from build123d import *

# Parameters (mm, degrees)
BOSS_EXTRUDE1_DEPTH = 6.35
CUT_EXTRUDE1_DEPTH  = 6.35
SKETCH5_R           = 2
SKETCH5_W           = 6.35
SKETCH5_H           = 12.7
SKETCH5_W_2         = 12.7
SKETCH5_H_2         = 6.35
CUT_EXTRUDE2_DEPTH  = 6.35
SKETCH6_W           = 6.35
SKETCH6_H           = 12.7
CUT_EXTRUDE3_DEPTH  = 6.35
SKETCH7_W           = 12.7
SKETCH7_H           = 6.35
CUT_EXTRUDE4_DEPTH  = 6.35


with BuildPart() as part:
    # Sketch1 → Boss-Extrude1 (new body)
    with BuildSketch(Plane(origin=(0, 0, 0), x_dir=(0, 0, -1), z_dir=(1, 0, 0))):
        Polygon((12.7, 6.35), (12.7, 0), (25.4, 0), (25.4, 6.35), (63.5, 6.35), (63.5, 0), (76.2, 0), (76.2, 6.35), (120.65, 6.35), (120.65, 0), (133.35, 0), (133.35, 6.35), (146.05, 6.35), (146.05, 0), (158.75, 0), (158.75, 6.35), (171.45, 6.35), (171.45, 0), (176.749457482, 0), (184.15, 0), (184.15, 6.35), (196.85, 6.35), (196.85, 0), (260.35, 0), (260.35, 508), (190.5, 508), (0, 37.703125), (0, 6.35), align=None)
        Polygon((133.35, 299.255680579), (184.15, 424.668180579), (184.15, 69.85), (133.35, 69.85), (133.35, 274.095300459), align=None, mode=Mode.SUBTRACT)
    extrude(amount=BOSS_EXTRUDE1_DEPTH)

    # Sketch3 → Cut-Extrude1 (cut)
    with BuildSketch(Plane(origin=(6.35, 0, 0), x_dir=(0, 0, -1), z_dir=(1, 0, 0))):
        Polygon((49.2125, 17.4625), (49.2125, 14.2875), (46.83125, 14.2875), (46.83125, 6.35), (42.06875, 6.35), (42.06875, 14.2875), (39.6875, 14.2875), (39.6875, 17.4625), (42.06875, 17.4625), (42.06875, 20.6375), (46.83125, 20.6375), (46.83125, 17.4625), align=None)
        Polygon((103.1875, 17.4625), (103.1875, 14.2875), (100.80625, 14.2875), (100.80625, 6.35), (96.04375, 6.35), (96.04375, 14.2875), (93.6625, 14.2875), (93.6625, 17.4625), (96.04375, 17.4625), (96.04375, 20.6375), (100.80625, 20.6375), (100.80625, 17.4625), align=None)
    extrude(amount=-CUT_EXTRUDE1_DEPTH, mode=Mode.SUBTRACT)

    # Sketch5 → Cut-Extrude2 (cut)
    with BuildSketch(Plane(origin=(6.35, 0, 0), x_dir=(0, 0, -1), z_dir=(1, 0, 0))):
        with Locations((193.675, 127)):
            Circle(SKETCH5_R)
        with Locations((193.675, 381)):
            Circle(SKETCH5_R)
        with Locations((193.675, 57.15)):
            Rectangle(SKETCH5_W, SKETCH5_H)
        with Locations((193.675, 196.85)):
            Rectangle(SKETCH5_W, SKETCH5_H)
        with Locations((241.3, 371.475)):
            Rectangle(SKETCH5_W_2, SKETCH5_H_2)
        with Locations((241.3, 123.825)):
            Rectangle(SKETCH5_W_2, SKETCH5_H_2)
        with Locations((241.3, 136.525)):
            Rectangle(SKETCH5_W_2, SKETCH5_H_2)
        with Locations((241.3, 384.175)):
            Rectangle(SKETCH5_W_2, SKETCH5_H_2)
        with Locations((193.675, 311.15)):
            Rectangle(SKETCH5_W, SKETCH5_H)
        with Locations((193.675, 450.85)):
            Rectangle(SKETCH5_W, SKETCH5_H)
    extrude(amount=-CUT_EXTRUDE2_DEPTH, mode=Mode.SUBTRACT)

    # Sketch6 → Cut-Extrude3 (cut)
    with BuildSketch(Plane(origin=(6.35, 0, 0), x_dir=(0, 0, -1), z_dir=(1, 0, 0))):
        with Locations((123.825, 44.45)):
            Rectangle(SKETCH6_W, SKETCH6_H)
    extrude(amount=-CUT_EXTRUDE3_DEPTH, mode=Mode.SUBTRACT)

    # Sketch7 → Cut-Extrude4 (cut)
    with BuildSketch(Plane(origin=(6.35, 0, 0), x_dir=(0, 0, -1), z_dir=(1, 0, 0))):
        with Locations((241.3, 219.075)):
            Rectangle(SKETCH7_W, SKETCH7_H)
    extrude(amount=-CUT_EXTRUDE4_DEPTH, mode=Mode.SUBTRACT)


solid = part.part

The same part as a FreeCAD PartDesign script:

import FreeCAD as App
import Part
import Sketcher
from FreeCAD import Vector
Q = App.Units.Quantity

doc = App.newDocument("Part")
params = doc.addObject("Spreadsheet::Sheet", "Params")
for row, (alias, value) in enumerate([
    ("sketch1_width", "20 in"),
    ("sketch1_height", "2 in"),
    ("sketch1_height2", "1.5 in"),
    ("sketch1_height3", "2.5 in"),
    ("sketch1_width2", "0.25 in"),
    ("pad1_length", "0.25 in"),
    ("sketch2_width", "0.125 in"),
    ("sketch2_width2", "0.3125 in"),
    ("sketch2_height", "0.09375 in"),
    ("sketch2_height2", "0.1875 in"),
    ("pocket1_length", "0.25 in"),
    ("sketch3_width", "0.5 in"),
    ("sketch3_width2", "0.25 in"),
    ("pocket2_length", "0.25 in"),
    ("sketch4_width", "0.5 in"),
    ("sketch4_height", "0.25 in"),
    ("pocket3_length", "0.25 in"),
    ("sketch5_height", "0.5 in"),
    ("sketch5_width", "0.25 in"),
    ("pocket4_length", "0.25 in"),
], start=1):
    params.set(f"A{row}", alias)
    params.set(f"B{row}", "=" + value)
    params.setAlias(f"B{row}", alias)

body = doc.addObject("PartDesign::Body", "Body")

# Sketch on YZ plane
sketch1 = doc.addObject("Sketcher::SketchObject", "Sketch")
body.addObject(sketch1)
sketch1.AttachmentSupport = (doc.YZ_Plane, [""])
sketch1.MapMode = "FlatFace"
sketch1.addGeometry(Part.LineSegment(Vector(6.35, -12.7, 0), Vector(0, -12.7, 0)), False)
sketch1.addGeometry(Part.LineSegment(Vector(0, -12.7, 0), Vector(0, -25.4, 0)), False)
sketch1.addGeometry(Part.LineSegment(Vector(0, -25.4, 0), Vector(6.35, -25.4, 0)), False)
sketch1.addGeometry(Part.LineSegment(Vector(6.35, -25.4, 0), Vector(6.35, -63.5, 0)), False)
sketch1.addGeometry(Part.LineSegment(Vector(6.35, -63.5, 0), Vector(0, -63.5, 0)), False)
sketch1.addGeometry(Part.LineSegment(Vector(0, -63.5, 0), Vector(0, -76.2, 0)), False)
sketch1.addGeometry(Part.LineSegment(Vector(0, -76.2, 0), Vector(6.35, -76.2, 0)), False)
sketch1.addGeometry(Part.LineSegment(Vector(6.35, -76.2, 0), Vector(6.35, -120.65, 0)), False)
sketch1.addGeometry(Part.LineSegment(Vector(6.35, -120.65, 0), Vector(0, -120.65, 0)), False)
sketch1.addGeometry(Part.LineSegment(Vector(0, -120.65, 0), Vector(0, -133.35, 0)), False)
sketch1.addGeometry(Part.LineSegment(Vector(0, -133.35, 0), Vector(6.35, -133.35, 0)), False)
sketch1.addGeometry(Part.LineSegment(Vector(6.35, -133.35, 0), Vector(6.35, -146.05, 0)), False)
sketch1.addGeometry(Part.LineSegment(Vector(6.35, -146.05, 0), Vector(0, -146.05, 0)), False)
sketch1.addGeometry(Part.LineSegment(Vector(0, -146.05, 0), Vector(0, -158.75, 0)), False)
sketch1.addGeometry(Part.LineSegment(Vector(0, -158.75, 0), Vector(6.35, -158.75, 0)), False)
sketch1.addGeometry(Part.LineSegment(Vector(6.35, -158.75, 0), Vector(6.35, -171.45, 0)), False)
sketch1.addGeometry(Part.LineSegment(Vector(6.35, -171.45, 0), Vector(0, -171.45, 0)), False)
sketch1.addGeometry(Part.LineSegment(Vector(0, -171.45, 0), Vector(0, -184.15, 0)), False)
sketch1.addGeometry(Part.LineSegment(Vector(0, -184.15, 0), Vector(6.35, -184.15, 0)), False)
sketch1.addGeometry(Part.LineSegment(Vector(6.35, -184.15, 0), Vector(6.35, -196.85, 0)), False)
sketch1.addGeometry(Part.LineSegment(Vector(6.35, -196.85, 0), Vector(0, -196.85, 0)), False)
sketch1.addGeometry(Part.LineSegment(Vector(0, -196.85, 0), Vector(0, -260.35, 0)), False)
sketch1.addGeometry(Part.LineSegment(Vector(0, -260.35, 0), Vector(508, -260.35, 0)), False)
sketch1.addGeometry(Part.LineSegment(Vector(508, -260.35, 0), Vector(508, -190.5, 0)), False)
sketch1.addGeometry(Part.LineSegment(Vector(508, -190.5, 0), Vector(37.703125, 0, 0)), False)
sketch1.addGeometry(Part.LineSegment(Vector(37.703125, 0, 0), Vector(6.35, 0, 0)), False)
sketch1.addGeometry(Part.LineSegment(Vector(6.35, 0, 0), Vector(6.35, -12.7, 0)), False)
sketch1.addGeometry(Part.LineSegment(Vector(69.85, -133.35, 0), Vector(299.255681, -133.35, 0)), False)
sketch1.addGeometry(Part.LineSegment(Vector(299.255681, -133.35, 0), Vector(424.668181, -184.15, 0)), False)
sketch1.addGeometry(Part.LineSegment(Vector(424.668181, -184.15, 0), Vector(69.85, -184.15, 0)), False)
sketch1.addGeometry(Part.LineSegment(Vector(69.85, -184.15, 0), Vector(69.85, -133.35, 0)), False)
sketch1.addConstraint(Sketcher.Constraint("Coincident", 0, 2, 1, 1))
sketch1.addConstraint(Sketcher.Constraint("Coincident", 1, 2, 2, 1))
sketch1.addConstraint(Sketcher.Constraint("Coincident", 2, 2, 3, 1))
sketch1.addConstraint(Sketcher.Constraint("Coincident", 3, 2, 4, 1))
sketch1.addConstraint(Sketcher.Constraint("Coincident", 4, 2, 5, 1))
sketch1.addConstraint(Sketcher.Constraint("Coincident", 5, 2, 6, 1))
sketch1.addConstraint(Sketcher.Constraint("Coincident", 6, 2, 7, 1))
sketch1.addConstraint(Sketcher.Constraint("Coincident", 7, 2, 8, 1))
sketch1.addConstraint(Sketcher.Constraint("Coincident", 8, 2, 9, 1))
sketch1.addConstraint(Sketcher.Constraint("Coincident", 9, 2, 10, 1))
sketch1.addConstraint(Sketcher.Constraint("Coincident", 10, 2, 11, 1))
sketch1.addConstraint(Sketcher.Constraint("Coincident", 11, 2, 12, 1))
sketch1.addConstraint(Sketcher.Constraint("Coincident", 12, 2, 13, 1))
sketch1.addConstraint(Sketcher.Constraint("Coincident", 13, 2, 14, 1))
sketch1.addConstraint(Sketcher.Constraint("Coincident", 14, 2, 15, 1))
sketch1.addConstraint(Sketcher.Constraint("Coincident", 15, 2, 16, 1))
sketch1.addConstraint(Sketcher.Constraint("Coincident", 16, 2, 17, 1))
sketch1.addConstraint(Sketcher.Constraint("Coincident", 17, 2, 18, 1))
sketch1.addConstraint(Sketcher.Constraint("Coincident", 18, 2, 19, 1))
sketch1.addConstraint(Sketcher.Constraint("Coincident", 19, 2, 20, 1))
sketch1.addConstraint(Sketcher.Constraint("Coincident", 20, 2, 21, 1))
sketch1.addConstraint(Sketcher.Constraint("Coincident", 21, 2, 22, 1))
sketch1.addConstraint(Sketcher.Constraint("Coincident", 22, 2, 23, 1))
sketch1.addConstraint(Sketcher.Constraint("Coincident", 23, 2, 24, 1))
sketch1.addConstraint(Sketcher.Constraint("Coincident", 24, 2, 25, 1))
sketch1.addConstraint(Sketcher.Constraint("Coincident", 25, 2, 26, 1))
sketch1.addConstraint(Sketcher.Constraint("Coincident", 26, 2, 0, 1))
sketch1.addConstraint(Sketcher.Constraint("Coincident", 27, 2, 28, 1))
sketch1.addConstraint(Sketcher.Constraint("Coincident", 28, 2, 29, 1))
sketch1.addConstraint(Sketcher.Constraint("Coincident", 29, 2, 30, 1))
sketch1.addConstraint(Sketcher.Constraint("Coincident", 30, 2, 27, 1))
sketch1.addConstraint(Sketcher.Constraint("Horizontal", 0))
sketch1.addConstraint(Sketcher.Constraint("Vertical", 1))
sketch1.addConstraint(Sketcher.Constraint("Horizontal", 2))
sketch1.addConstraint(Sketcher.Constraint("Vertical", 3))
sketch1.addConstraint(Sketcher.Constraint("Horizontal", 4))
sketch1.addConstraint(Sketcher.Constraint("Vertical", 5))
sketch1.addConstraint(Sketcher.Constraint("Horizontal", 6))
sketch1.addConstraint(Sketcher.Constraint("Vertical", 7))
sketch1.addConstraint(Sketcher.Constraint("Horizontal", 8))
sketch1.addConstraint(Sketcher.Constraint("Vertical", 9))
sketch1.addConstraint(Sketcher.Constraint("Horizontal", 10))
sketch1.addConstraint(Sketcher.Constraint("Vertical", 11))
sketch1.addConstraint(Sketcher.Constraint("Horizontal", 12))
sketch1.addConstraint(Sketcher.Constraint("Vertical", 13))
sketch1.addConstraint(Sketcher.Constraint("Horizontal", 14))
sketch1.addConstraint(Sketcher.Constraint("Vertical", 15))
sketch1.addConstraint(Sketcher.Constraint("Horizontal", 16))
sketch1.addConstraint(Sketcher.Constraint("Vertical", 17))
sketch1.addConstraint(Sketcher.Constraint("Horizontal", 18))
sketch1.addConstraint(Sketcher.Constraint("Vertical", 19))
sketch1.addConstraint(Sketcher.Constraint("Horizontal", 20))
sketch1.addConstraint(Sketcher.Constraint("Vertical", 21))
sketch1.addConstraint(Sketcher.Constraint("Horizontal", 22))
sketch1.addConstraint(Sketcher.Constraint("Vertical", 23))
sketch1.addConstraint(Sketcher.Constraint("Horizontal", 25))
sketch1.addConstraint(Sketcher.Constraint("Vertical", 26))
sketch1.addConstraint(Sketcher.Constraint("Horizontal", 27))
sketch1.addConstraint(Sketcher.Constraint("Horizontal", 29))
sketch1.addConstraint(Sketcher.Constraint("Vertical", 30))
sketch1.addConstraint(Sketcher.Constraint("PointOnObject", 0, 2, -2))
sketch1.addConstraint(Sketcher.Constraint("PointOnObject", 4, 2, -2))
sketch1.addConstraint(Sketcher.Constraint("PointOnObject", 8, 2, -2))
sketch1.addConstraint(Sketcher.Constraint("PointOnObject", 12, 2, -2))
sketch1.addConstraint(Sketcher.Constraint("PointOnObject", 16, 2, -2))
sketch1.addConstraint(Sketcher.Constraint("PointOnObject", 20, 2, -2))
sketch1.addConstraint(Sketcher.Constraint("PointOnObject", 24, 2, -1))
sketch1.addConstraint(Sketcher.Constraint("Parallel", 24, 28))
sketch1.addConstraint(Sketcher.Constraint("Horizontal", 10, 2, 27, 2))
sketch1.addConstraint(Sketcher.Constraint("Horizontal", 18, 2, 28, 2))
sketch1.addConstraint(Sketcher.Constraint("Vertical", 3, 2, 6, 2))
sketch1.addConstraint(Sketcher.Constraint("Vertical", 7, 2, 10, 2))
sketch1.addConstraint(Sketcher.Constraint("Vertical", 11, 2, 14, 2))
sketch1.addConstraint(Sketcher.Constraint("Vertical", 15, 2, 18, 2))
sketch1.addConstraint(Sketcher.Constraint("Vertical", 19, 2, 25, 2))
sketch1.addConstraint(Sketcher.Constraint("Equal", 1, 5))
sketch1.addConstraint(Sketcher.Constraint("Equal", 5, 9))
sketch1.addConstraint(Sketcher.Constraint("Equal", 9, 11))
sketch1.addConstraint(Sketcher.Constraint("Equal", 11, 13))
sketch1.addConstraint(Sketcher.Constraint("Equal", 13, 15))
sketch1.addConstraint(Sketcher.Constraint("Equal", 15, 17))
sketch1.addConstraint(Sketcher.Constraint("Equal", 17, 19))
sketch1.addConstraint(Sketcher.Constraint("Equal", 19, 26))
sketch1.addConstraint(Sketcher.Constraint("DistanceX", 22, 1, 22, 2, Q("20 in")))
sketch1.addConstraint(Sketcher.Constraint("DistanceY", 30, 1, 30, 2, Q("2 in")))
sketch1.addConstraint(Sketcher.Constraint("DistanceY", 3, 2, 3, 1, Q("1.5 in")))
sketch1.addConstraint(Sketcher.Constraint("DistanceY", 21, 2, 21, 1, Q("2.5 in")))
sketch1.addConstraint(Sketcher.Constraint("DistanceX", 0, 2, 0, 1, Q("0.25 in")))
sketch1.addConstraint(Sketcher.Constraint("DistanceY", 7, 2, 7, 1, Q("1.75 in")))
sketch1.addConstraint(Sketcher.Constraint("DistanceY", 23, 1, 23, 2, Q("2.75 in")))
sketch1.addConstraint(Sketcher.Constraint("DistanceX", 18, 2, 29, 2, Q("2.5 in")))
sketch1.addConstraint(Sketcher.Constraint("DistanceX", 25, 2, 25, 1, Q("1.234375 in")))
sketch1.addConstraint(Sketcher.Constraint("DistanceX", 27, 1, 27, 2, Q("229.405681 mm")))
sketch1.setExpression("Constraints[83]", "Params.sketch1_width")
sketch1.setExpression("Constraints[84]", "Params.sketch1_height")
sketch1.setExpression("Constraints[85]", "Params.sketch1_height2")
sketch1.setExpression("Constraints[86]", "Params.sketch1_height3")
sketch1.setExpression("Constraints[87]", "Params.sketch1_width2")
pad1 = doc.addObject("PartDesign::Pad", "Pad")
body.addObject(pad1)
pad1.Profile = sketch1
pad1.setExpression("Length", "Params.pad1_length")

# Sketch on YZ plane
sketch2 = doc.addObject("Sketcher::SketchObject", "Sketch001")
body.addObject(sketch2)
sketch2.AttachmentSupport = (doc.YZ_Plane, [""])
sketch2.MapMode = "FlatFace"
sketch2.AttachmentOffset = App.Placement(Vector(0, 0, 0.25 * 25.4), App.Rotation())
sketch2.addGeometry(Part.LineSegment(Vector(14.2875, -49.2125, 0), Vector(17.4625, -49.2125, 0)), False)
sketch2.addGeometry(Part.LineSegment(Vector(17.4625, -49.2125, 0), Vector(17.4625, -46.83125, 0)), False)
sketch2.addGeometry(Part.LineSegment(Vector(17.4625, -46.83125, 0), Vector(20.6375, -46.83125, 0)), False)
sketch2.addGeometry(Part.LineSegment(Vector(20.6375, -46.83125, 0), Vector(20.6375, -42.06875, 0)), False)
sketch2.addGeometry(Part.LineSegment(Vector(20.6375, -42.06875, 0), Vector(17.4625, -42.06875, 0)), False)
sketch2.addGeometry(Part.LineSegment(Vector(17.4625, -42.06875, 0), Vector(17.4625, -39.6875, 0)), False)
sketch2.addGeometry(Part.LineSegment(Vector(17.4625, -39.6875, 0), Vector(14.2875, -39.6875, 0)), False)
sketch2.addGeometry(Part.LineSegment(Vector(14.2875, -39.6875, 0), Vector(14.2875, -42.06875, 0)), False)
sketch2.addGeometry(Part.LineSegment(Vector(14.2875, -42.06875, 0), Vector(6.35, -42.06875, 0)), False)
sketch2.addGeometry(Part.LineSegment(Vector(6.35, -42.06875, 0), Vector(6.35, -46.83125, 0)), False)
sketch2.addGeometry(Part.LineSegment(Vector(6.35, -46.83125, 0), Vector(14.2875, -46.83125, 0)), False)
sketch2.addGeometry(Part.LineSegment(Vector(14.2875, -46.83125, 0), Vector(14.2875, -49.2125, 0)), False)
sketch2.addGeometry(Part.LineSegment(Vector(14.2875, -103.1875, 0), Vector(17.4625, -103.1875, 0)), False)
sketch2.addGeometry(Part.LineSegment(Vector(17.4625, -103.1875, 0), Vector(17.4625, -100.80625, 0)), False)
sketch2.addGeometry(Part.LineSegment(Vector(17.4625, -100.80625, 0), Vector(20.6375, -100.80625, 0)), False)
sketch2.addGeometry(Part.LineSegment(Vector(20.6375, -100.80625, 0), Vector(20.6375, -96.04375, 0)), False)
sketch2.addGeometry(Part.LineSegment(Vector(20.6375, -96.04375, 0), Vector(17.4625, -96.04375, 0)), False)
sketch2.addGeometry(Part.LineSegment(Vector(17.4625, -96.04375, 0), Vector(17.4625, -93.6625, 0)), False)
sketch2.addGeometry(Part.LineSegment(Vector(17.4625, -93.6625, 0), Vector(14.2875, -93.6625, 0)), False)
sketch2.addGeometry(Part.LineSegment(Vector(14.2875, -93.6625, 0), Vector(14.2875, -96.04375, 0)), False)
sketch2.addGeometry(Part.LineSegment(Vector(14.2875, -96.04375, 0), Vector(6.35, -96.04375, 0)), False)
sketch2.addGeometry(Part.LineSegment(Vector(6.35, -96.04375, 0), Vector(6.35, -100.80625, 0)), False)
sketch2.addGeometry(Part.LineSegment(Vector(6.35, -100.80625, 0), Vector(14.2875, -100.80625, 0)), False)
sketch2.addGeometry(Part.LineSegment(Vector(14.2875, -100.80625, 0), Vector(14.2875, -103.1875, 0)), False)
sketch2.addConstraint(Sketcher.Constraint("Coincident", 0, 2, 1, 1))
sketch2.addConstraint(Sketcher.Constraint("Coincident", 1, 2, 2, 1))
sketch2.addConstraint(Sketcher.Constraint("Coincident", 2, 2, 3, 1))
sketch2.addConstraint(Sketcher.Constraint("Coincident", 3, 2, 4, 1))
sketch2.addConstraint(Sketcher.Constraint("Coincident", 4, 2, 5, 1))
sketch2.addConstraint(Sketcher.Constraint("Coincident", 5, 2, 6, 1))
sketch2.addConstraint(Sketcher.Constraint("Coincident", 6, 2, 7, 1))
sketch2.addConstraint(Sketcher.Constraint("Coincident", 7, 2, 8, 1))
sketch2.addConstraint(Sketcher.Constraint("Coincident", 8, 2, 9, 1))
sketch2.addConstraint(Sketcher.Constraint("Coincident", 9, 2, 10, 1))
sketch2.addConstraint(Sketcher.Constraint("Coincident", 10, 2, 11, 1))
sketch2.addConstraint(Sketcher.Constraint("Coincident", 11, 2, 0, 1))
sketch2.addConstraint(Sketcher.Constraint("Coincident", 12, 2, 13, 1))
sketch2.addConstraint(Sketcher.Constraint("Coincident", 13, 2, 14, 1))
sketch2.addConstraint(Sketcher.Constraint("Coincident", 14, 2, 15, 1))
sketch2.addConstraint(Sketcher.Constraint("Coincident", 15, 2, 16, 1))
sketch2.addConstraint(Sketcher.Constraint("Coincident", 16, 2, 17, 1))
sketch2.addConstraint(Sketcher.Constraint("Coincident", 17, 2, 18, 1))
sketch2.addConstraint(Sketcher.Constraint("Coincident", 18, 2, 19, 1))
sketch2.addConstraint(Sketcher.Constraint("Coincident", 19, 2, 20, 1))
sketch2.addConstraint(Sketcher.Constraint("Coincident", 20, 2, 21, 1))
sketch2.addConstraint(Sketcher.Constraint("Coincident", 21, 2, 22, 1))
sketch2.addConstraint(Sketcher.Constraint("Coincident", 22, 2, 23, 1))
sketch2.addConstraint(Sketcher.Constraint("Coincident", 23, 2, 12, 1))
sketch2.addConstraint(Sketcher.Constraint("Horizontal", 0))
sketch2.addConstraint(Sketcher.Constraint("Vertical", 1))
sketch2.addConstraint(Sketcher.Constraint("Horizontal", 2))
sketch2.addConstraint(Sketcher.Constraint("Vertical", 3))
sketch2.addConstraint(Sketcher.Constraint("Horizontal", 4))
sketch2.addConstraint(Sketcher.Constraint("Vertical", 5))
sketch2.addConstraint(Sketcher.Constraint("Horizontal", 6))
sketch2.addConstraint(Sketcher.Constraint("Vertical", 7))
sketch2.addConstraint(Sketcher.Constraint("Horizontal", 8))
sketch2.addConstraint(Sketcher.Constraint("Vertical", 9))
sketch2.addConstraint(Sketcher.Constraint("Horizontal", 10))
sketch2.addConstraint(Sketcher.Constraint("Vertical", 11))
sketch2.addConstraint(Sketcher.Constraint("Horizontal", 12))
sketch2.addConstraint(Sketcher.Constraint("Vertical", 13))
sketch2.addConstraint(Sketcher.Constraint("Horizontal", 14))
sketch2.addConstraint(Sketcher.Constraint("Vertical", 15))
sketch2.addConstraint(Sketcher.Constraint("Horizontal", 16))
sketch2.addConstraint(Sketcher.Constraint("Vertical", 17))
sketch2.addConstraint(Sketcher.Constraint("Horizontal", 18))
sketch2.addConstraint(Sketcher.Constraint("Vertical", 19))
sketch2.addConstraint(Sketcher.Constraint("Horizontal", 20))
sketch2.addConstraint(Sketcher.Constraint("Vertical", 21))
sketch2.addConstraint(Sketcher.Constraint("Horizontal", 22))
sketch2.addConstraint(Sketcher.Constraint("Vertical", 23))
sketch2.addConstraint(Sketcher.Constraint("Horizontal", 4, 2, 7, 2))
sketch2.addConstraint(Sketcher.Constraint("Horizontal", 2, 2, 9, 2))
sketch2.addConstraint(Sketcher.Constraint("Horizontal", 16, 2, 19, 2))
sketch2.addConstraint(Sketcher.Constraint("Horizontal", 14, 2, 21, 2))
sketch2.addConstraint(Sketcher.Constraint("Vertical", 1, 2, 4, 2))
sketch2.addConstraint(Sketcher.Constraint("Vertical", 7, 2, 10, 2))
sketch2.addConstraint(Sketcher.Constraint("Vertical", 5, 2, 12, 2))
sketch2.addConstraint(Sketcher.Constraint("Vertical", 3, 2, 14, 2))
sketch2.addConstraint(Sketcher.Constraint("Vertical", 13, 2, 16, 2))
sketch2.addConstraint(Sketcher.Constraint("Vertical", 11, 2, 18, 2))
sketch2.addConstraint(Sketcher.Constraint("Vertical", 9, 2, 20, 2))
sketch2.addConstraint(Sketcher.Constraint("Vertical", 19, 2, 22, 2))
sketch2.addConstraint(Sketcher.Constraint("Equal", 0, 2))
sketch2.addConstraint(Sketcher.Constraint("Equal", 1, 5))
sketch2.addConstraint(Sketcher.Constraint("Equal", 11, 13))
sketch2.addConstraint(Sketcher.Constraint("Equal", 9, 15))
sketch2.addConstraint(Sketcher.Constraint("Equal", 13, 17))
sketch2.addConstraint(Sketcher.Constraint("DistanceX", 0, 1, 0, 2, Q("0.125 in")))
sketch2.addConstraint(Sketcher.Constraint("DistanceX", 8, 2, 8, 1, Q("0.3125 in")))
sketch2.addConstraint(Sketcher.Constraint("DistanceY", 1, 1, 1, 2, Q("0.09375 in")))
sketch2.addConstraint(Sketcher.Constraint("DistanceY", 3, 1, 3, 2, Q("0.1875 in")))
sketch2.addConstraint(Sketcher.Constraint("DistanceX", -1, 1, 8, 2, Q("0.25 in")))
sketch2.addConstraint(Sketcher.Constraint("DistanceY", 0, 2, -1, 1, Q("1.9375 in")))
sketch2.addConstraint(Sketcher.Constraint("DistanceY", 12, 2, -1, 1, Q("4.0625 in")))
sketch2.setExpression("Constraints[65]", "Params.sketch2_width")
sketch2.setExpression("Constraints[66]", "Params.sketch2_width2")
sketch2.setExpression("Constraints[67]", "Params.sketch2_height")
sketch2.setExpression("Constraints[68]", "Params.sketch2_height2")
pocket1 = doc.addObject("PartDesign::Pocket", "Pocket")
body.addObject(pocket1)
pocket1.Profile = sketch2
pocket1.setExpression("Length", "Params.pocket1_length")

# Sketch on YZ plane
sketch3 = doc.addObject("Sketcher::SketchObject", "Sketch002")
body.addObject(sketch3)
sketch3.AttachmentSupport = (doc.YZ_Plane, [""])
sketch3.MapMode = "FlatFace"
sketch3.AttachmentOffset = App.Placement(Vector(0, 0, 0.25 * 25.4), App.Rotation())
sketch3.addGeometry(Part.Circle(Vector(127, -193.675, 0), Vector(0, 0, 1), 2), False)
sketch3.addGeometry(Part.Circle(Vector(381, -193.675, 0), Vector(0, 0, 1), 2), False)
sketch3.addGeometry(Part.LineSegment(Vector(63.5, -190.5, 0), Vector(50.8, -190.5, 0)), False)
sketch3.addGeometry(Part.LineSegment(Vector(50.8, -190.5, 0), Vector(50.8, -196.85, 0)), False)
sketch3.addGeometry(Part.LineSegment(Vector(50.8, -196.85, 0), Vector(63.5, -196.85, 0)), False)
sketch3.addGeometry(Part.LineSegment(Vector(63.5, -196.85, 0), Vector(63.5, -190.5, 0)), False)
sketch3.addGeometry(Part.LineSegment(Vector(203.2, -190.5, 0), Vector(190.5, -190.5, 0)), False)
sketch3.addGeometry(Part.LineSegment(Vector(190.5, -190.5, 0), Vector(190.5, -196.85, 0)), False)
sketch3.addGeometry(Part.LineSegment(Vector(190.5, -196.85, 0), Vector(203.2, -196.85, 0)), False)
sketch3.addGeometry(Part.LineSegment(Vector(203.2, -196.85, 0), Vector(203.2, -190.5, 0)), False)
sketch3.addGeometry(Part.LineSegment(Vector(374.65, -234.95, 0), Vector(368.3, -234.95, 0)), False)
sketch3.addGeometry(Part.LineSegment(Vector(368.3, -234.95, 0), Vector(368.3, -247.65, 0)), False)
sketch3.addGeometry(Part.LineSegment(Vector(368.3, -247.65, 0), Vector(374.65, -247.65, 0)), False)
sketch3.addGeometry(Part.LineSegment(Vector(374.65, -247.65, 0), Vector(374.65, -234.95, 0)), False)
sketch3.addGeometry(Part.LineSegment(Vector(127, -234.95, 0), Vector(120.65, -234.95, 0)), False)
sketch3.addGeometry(Part.LineSegment(Vector(120.65, -234.95, 0), Vector(120.65, -247.65, 0)), False)
sketch3.addGeometry(Part.LineSegment(Vector(120.65, -247.65, 0), Vector(127, -247.65, 0)), False)
sketch3.addGeometry(Part.LineSegment(Vector(127, -247.65, 0), Vector(127, -234.95, 0)), False)
sketch3.addGeometry(Part.LineSegment(Vector(139.7, -234.95, 0), Vector(133.35, -234.95, 0)), False)
sketch3.addGeometry(Part.LineSegment(Vector(133.35, -234.95, 0), Vector(133.35, -247.65, 0)), False)
sketch3.addGeometry(Part.LineSegment(Vector(133.35, -247.65, 0), Vector(139.7, -247.65, 0)), False)
sketch3.addGeometry(Part.LineSegment(Vector(139.7, -247.65, 0), Vector(139.7, -234.95, 0)), False)
sketch3.addGeometry(Part.LineSegment(Vector(387.35, -234.95, 0), Vector(381, -234.95, 0)), False)
sketch3.addGeometry(Part.LineSegment(Vector(381, -234.95, 0), Vector(381, -247.65, 0)), False)
sketch3.addGeometry(Part.LineSegment(Vector(381, -247.65, 0), Vector(387.35, -247.65, 0)), False)
sketch3.addGeometry(Part.LineSegment(Vector(387.35, -247.65, 0), Vector(387.35, -234.95, 0)), False)
sketch3.addGeometry(Part.LineSegment(Vector(317.5, -190.5, 0), Vector(304.8, -190.5, 0)), False)
sketch3.addGeometry(Part.LineSegment(Vector(304.8, -190.5, 0), Vector(304.8, -196.85, 0)), False)
sketch3.addGeometry(Part.LineSegment(Vector(304.8, -196.85, 0), Vector(317.5, -196.85, 0)), False)
sketch3.addGeometry(Part.LineSegment(Vector(317.5, -196.85, 0), Vector(317.5, -190.5, 0)), False)
sketch3.addGeometry(Part.LineSegment(Vector(457.2, -190.5, 0), Vector(444.5, -190.5, 0)), False)
sketch3.addGeometry(Part.LineSegment(Vector(444.5, -190.5, 0), Vector(444.5, -196.85, 0)), False)
sketch3.addGeometry(Part.LineSegment(Vector(444.5, -196.85, 0), Vector(457.2, -196.85, 0)), False)
sketch3.addGeometry(Part.LineSegment(Vector(457.2, -196.85, 0), Vector(457.2, -190.5, 0)), False)
sketch3.addConstraint(Sketcher.Constraint("Coincident", 2, 2, 3, 1))
sketch3.addConstraint(Sketcher.Constraint("Coincident", 3, 2, 4, 1))
sketch3.addConstraint(Sketcher.Constraint("Coincident", 4, 2, 5, 1))
sketch3.addConstraint(Sketcher.Constraint("Coincident", 5, 2, 2, 1))
sketch3.addConstraint(Sketcher.Constraint("Coincident", 6, 2, 7, 1))
sketch3.addConstraint(Sketcher.Constraint("Coincident", 7, 2, 8, 1))
sketch3.addConstraint(Sketcher.Constraint("Coincident", 8, 2, 9, 1))
sketch3.addConstraint(Sketcher.Constraint("Coincident", 9, 2, 6, 1))
sketch3.addConstraint(Sketcher.Constraint("Coincident", 10, 2, 11, 1))
sketch3.addConstraint(Sketcher.Constraint("Coincident", 11, 2, 12, 1))
sketch3.addConstraint(Sketcher.Constraint("Coincident", 12, 2, 13, 1))
sketch3.addConstraint(Sketcher.Constraint("Coincident", 13, 2, 10, 1))
sketch3.addConstraint(Sketcher.Constraint("Coincident", 14, 2, 15, 1))
sketch3.addConstraint(Sketcher.Constraint("Coincident", 15, 2, 16, 1))
sketch3.addConstraint(Sketcher.Constraint("Coincident", 16, 2, 17, 1))
sketch3.addConstraint(Sketcher.Constraint("Coincident", 17, 2, 14, 1))
sketch3.addConstraint(Sketcher.Constraint("Coincident", 18, 2, 19, 1))
sketch3.addConstraint(Sketcher.Constraint("Coincident", 19, 2, 20, 1))
sketch3.addConstraint(Sketcher.Constraint("Coincident", 20, 2, 21, 1))
sketch3.addConstraint(Sketcher.Constraint("Coincident", 21, 2, 18, 1))
sketch3.addConstraint(Sketcher.Constraint("Coincident", 22, 2, 23, 1))
sketch3.addConstraint(Sketcher.Constraint("Coincident", 23, 2, 24, 1))
sketch3.addConstraint(Sketcher.Constraint("Coincident", 24, 2, 25, 1))
sketch3.addConstraint(Sketcher.Constraint("Coincident", 25, 2, 22, 1))
sketch3.addConstraint(Sketcher.Constraint("Coincident", 26, 2, 27, 1))
sketch3.addConstraint(Sketcher.Constraint("Coincident", 27, 2, 28, 1))
sketch3.addConstraint(Sketcher.Constraint("Coincident", 28, 2, 29, 1))
sketch3.addConstraint(Sketcher.Constraint("Coincident", 29, 2, 26, 1))
sketch3.addConstraint(Sketcher.Constraint("Coincident", 30, 2, 31, 1))
sketch3.addConstraint(Sketcher.Constraint("Coincident", 31, 2, 32, 1))
sketch3.addConstraint(Sketcher.Constraint("Coincident", 32, 2, 33, 1))
sketch3.addConstraint(Sketcher.Constraint("Coincident", 33, 2, 30, 1))
sketch3.addConstraint(Sketcher.Constraint("Horizontal", 2))
sketch3.addConstraint(Sketcher.Constraint("Vertical", 3))
sketch3.addConstraint(Sketcher.Constraint("Horizontal", 4))
sketch3.addConstraint(Sketcher.Constraint("Vertical", 5))
sketch3.addConstraint(Sketcher.Constraint("Horizontal", 6))
sketch3.addConstraint(Sketcher.Constraint("Vertical", 7))
sketch3.addConstraint(Sketcher.Constraint("Horizontal", 8))
sketch3.addConstraint(Sketcher.Constraint("Vertical", 9))
sketch3.addConstraint(Sketcher.Constraint("Horizontal", 10))
sketch3.addConstraint(Sketcher.Constraint("Vertical", 11))
sketch3.addConstraint(Sketcher.Constraint("Horizontal", 12))
sketch3.addConstraint(Sketcher.Constraint("Vertical", 13))
sketch3.addConstraint(Sketcher.Constraint("Horizontal", 14))
sketch3.addConstraint(Sketcher.Constraint("Vertical", 15))
sketch3.addConstraint(Sketcher.Constraint("Horizontal", 16))
sketch3.addConstraint(Sketcher.Constraint("Vertical", 17))
sketch3.addConstraint(Sketcher.Constraint("Horizontal", 18))
sketch3.addConstraint(Sketcher.Constraint("Vertical", 19))
sketch3.addConstraint(Sketcher.Constraint("Horizontal", 20))
sketch3.addConstraint(Sketcher.Constraint("Vertical", 21))
sketch3.addConstraint(Sketcher.Constraint("Horizontal", 22))
sketch3.addConstraint(Sketcher.Constraint("Vertical", 23))
sketch3.addConstraint(Sketcher.Constraint("Horizontal", 24))
sketch3.addConstraint(Sketcher.Constraint("Vertical", 25))
sketch3.addConstraint(Sketcher.Constraint("Horizontal", 26))
sketch3.addConstraint(Sketcher.Constraint("Vertical", 27))
sketch3.addConstraint(Sketcher.Constraint("Horizontal", 28))
sketch3.addConstraint(Sketcher.Constraint("Vertical", 29))
sketch3.addConstraint(Sketcher.Constraint("Horizontal", 30))
sketch3.addConstraint(Sketcher.Constraint("Vertical", 31))
sketch3.addConstraint(Sketcher.Constraint("Horizontal", 32))
sketch3.addConstraint(Sketcher.Constraint("Vertical", 33))
sketch3.addConstraint(Sketcher.Constraint("Equal", 0, 1))
sketch3.addConstraint(Sketcher.Constraint("Horizontal", 0, 3, 1, 3))
sketch3.addConstraint(Sketcher.Constraint("Horizontal", 5, 2, 6, 2))
sketch3.addConstraint(Sketcher.Constraint("Horizontal", 4, 2, 7, 2))
sketch3.addConstraint(Sketcher.Constraint("Horizontal", 13, 2, 14, 2))
sketch3.addConstraint(Sketcher.Constraint("Horizontal", 12, 2, 15, 2))
sketch3.addConstraint(Sketcher.Constraint("Horizontal", 17, 2, 18, 2))
sketch3.addConstraint(Sketcher.Constraint("Horizontal", 16, 2, 19, 2))
sketch3.addConstraint(Sketcher.Constraint("Horizontal", 21, 2, 22, 2))
sketch3.addConstraint(Sketcher.Constraint("Horizontal", 20, 2, 23, 2))
sketch3.addConstraint(Sketcher.Constraint("Horizontal", 9, 2, 26, 2))
sketch3.addConstraint(Sketcher.Constraint("Horizontal", 8, 2, 27, 2))
sketch3.addConstraint(Sketcher.Constraint("Horizontal", 29, 2, 30, 2))
sketch3.addConstraint(Sketcher.Constraint("Horizontal", 28, 2, 31, 2))
sketch3.addConstraint(Sketcher.Constraint("Vertical", 0, 3, 16, 2))
sketch3.addConstraint(Sketcher.Constraint("Vertical", 1, 3, 22, 2))
sketch3.addConstraint(Sketcher.Constraint("Equal", 4, 6))
sketch3.addConstraint(Sketcher.Constraint("Equal", 12, 14))
sketch3.addConstraint(Sketcher.Constraint("Equal", 16, 18))
sketch3.addConstraint(Sketcher.Constraint("Equal", 20, 22))
sketch3.addConstraint(Sketcher.Constraint("Equal", 8, 26))
sketch3.addConstraint(Sketcher.Constraint("Equal", 28, 30))
sketch3.addConstraint(Sketcher.Constraint("Equal", 24, 3))
sketch3.addConstraint(Sketcher.Constraint("Equal", 32, 11))
sketch3.addConstraint(Sketcher.Constraint("DistanceX", 2, 2, 2, 1, Q("0.5 in")))
sketch3.addConstraint(Sketcher.Constraint("DistanceX", -1, 1, 0, 3, Q("5 in")))
sketch3.addConstraint(Sketcher.Constraint("DistanceX", -1, 1, 1, 3, Q("15 in")))
sketch3.addConstraint(Sketcher.Constraint("DistanceX", -1, 1, 2, 2, Q("2 in")))
sketch3.addConstraint(Sketcher.Constraint("DistanceX", -1, 1, 8, 2, Q("8 in")))
sketch3.addConstraint(Sketcher.Constraint("DistanceX", -1, 1, 26, 2, Q("12 in")))
sketch3.addConstraint(Sketcher.Constraint("DistanceX", -1, 1, 32, 2, Q("18 in")))
sketch3.addConstraint(Sketcher.Constraint("DistanceX", 7, 2, 10, 2, Q("7 in")))
sketch3.addConstraint(Sketcher.Constraint("DistanceY", 11, 2, 8, 2, Q("2 in")))
sketch3.addConstraint(Sketcher.Constraint("DistanceX", 10, 2, 10, 1, Q("0.25 in")))
sketch3.addConstraint(Sketcher.Constraint("DistanceY", 2, 2, -1, 1, Q("7.5 in")))
sketch3.addConstraint(Sketcher.Constraint("DistanceX", -1, 1, 20, 2, Q("5.5 in")))
sketch3.addConstraint(Sketcher.Constraint("Diameter", 0, Q("4 mm")))
sketch3.addConstraint(Sketcher.Constraint("DistanceY", 0, 3, -1, 1, Q("7.625 in")))
sketch3.setExpression("Constraints[88]", "Params.sketch3_width")
sketch3.setExpression("Constraints[97]", "Params.sketch3_width2")
pocket2 = doc.addObject("PartDesign::Pocket", "Pocket001")
body.addObject(pocket2)
pocket2.Profile = sketch3
pocket2.setExpression("Length", "Params.pocket2_length")

# Sketch on YZ plane
sketch4 = doc.addObject("Sketcher::SketchObject", "Sketch003")
body.addObject(sketch4)
sketch4.AttachmentSupport = (doc.YZ_Plane, [""])
sketch4.MapMode = "FlatFace"
sketch4.AttachmentOffset = App.Placement(Vector(0, 0, 0.25 * 25.4), App.Rotation())
sketch4.addGeometry(Part.LineSegment(Vector(50.8, -120.65, 0), Vector(38.1, -120.65, 0)), False)
sketch4.addGeometry(Part.LineSegment(Vector(38.1, -120.65, 0), Vector(38.1, -127, 0)), False)
sketch4.addGeometry(Part.LineSegment(Vector(38.1, -127, 0), Vector(50.8, -127, 0)), False)
sketch4.addGeometry(Part.LineSegment(Vector(50.8, -127, 0), Vector(50.8, -120.65, 0)), False)
sketch4.addConstraint(Sketcher.Constraint("Coincident", 0, 2, 1, 1))
sketch4.addConstraint(Sketcher.Constraint("Coincident", 1, 2, 2, 1))
sketch4.addConstraint(Sketcher.Constraint("Coincident", 2, 2, 3, 1))
sketch4.addConstraint(Sketcher.Constraint("Coincident", 3, 2, 0, 1))
sketch4.addConstraint(Sketcher.Constraint("Horizontal", 0))
sketch4.addConstraint(Sketcher.Constraint("Vertical", 1))
sketch4.addConstraint(Sketcher.Constraint("Horizontal", 2))
sketch4.addConstraint(Sketcher.Constraint("Vertical", 3))
sketch4.addConstraint(Sketcher.Constraint("DistanceX", 0, 2, 0, 1, Q("0.5 in")))
sketch4.addConstraint(Sketcher.Constraint("DistanceY", 1, 2, -1, 1, Q("5 in")))
sketch4.addConstraint(Sketcher.Constraint("DistanceX", -1, 1, 2, 2, Q("2 in")))
sketch4.addConstraint(Sketcher.Constraint("DistanceY", 1, 2, 1, 1, Q("0.25 in")))
sketch4.setExpression("Constraints[8]", "Params.sketch4_width")
sketch4.setExpression("Constraints[11]", "Params.sketch4_height")
pocket3 = doc.addObject("PartDesign::Pocket", "Pocket002")
body.addObject(pocket3)
pocket3.Profile = sketch4
pocket3.setExpression("Length", "Params.pocket3_length")

# Sketch on YZ plane
sketch5 = doc.addObject("Sketcher::SketchObject", "Sketch004")
body.addObject(sketch5)
sketch5.AttachmentSupport = (doc.YZ_Plane, [""])
sketch5.MapMode = "FlatFace"
sketch5.AttachmentOffset = App.Placement(Vector(0, 0, 0.25 * 25.4), App.Rotation())
sketch5.addGeometry(Part.LineSegment(Vector(222.25, -234.95, 0), Vector(215.9, -234.95, 0)), False)
sketch5.addGeometry(Part.LineSegment(Vector(215.9, -234.95, 0), Vector(215.9, -247.65, 0)), False)
sketch5.addGeometry(Part.LineSegment(Vector(215.9, -247.65, 0), Vector(222.25, -247.65, 0)), False)
sketch5.addGeometry(Part.LineSegment(Vector(222.25, -247.65, 0), Vector(222.25, -234.95, 0)), False)
sketch5.addConstraint(Sketcher.Constraint("Coincident", 0, 2, 1, 1))
sketch5.addConstraint(Sketcher.Constraint("Coincident", 1, 2, 2, 1))
sketch5.addConstraint(Sketcher.Constraint("Coincident", 2, 2, 3, 1))
sketch5.addConstraint(Sketcher.Constraint("Coincident", 3, 2, 0, 1))
sketch5.addConstraint(Sketcher.Constraint("Horizontal", 0))
sketch5.addConstraint(Sketcher.Constraint("Vertical", 1))
sketch5.addConstraint(Sketcher.Constraint("Horizontal", 2))
sketch5.addConstraint(Sketcher.Constraint("Vertical", 3))
sketch5.addConstraint(Sketcher.Constraint("DistanceY", 1, 2, 1, 1, Q("0.5 in")))
sketch5.addConstraint(Sketcher.Constraint("DistanceX", 0, 2, 0, 1, Q("0.25 in")))
sketch5.addConstraint(Sketcher.Constraint("DistanceX", -1, 1, 0, 2, Q("8.5 in")))
sketch5.addConstraint(Sketcher.Constraint("DistanceY", 0, 2, -1, 1, Q("9.25 in")))
sketch5.setExpression("Constraints[8]", "Params.sketch5_height")
sketch5.setExpression("Constraints[9]", "Params.sketch5_width")
pocket4 = doc.addObject("PartDesign::Pocket", "Pocket003")
body.addObject(pocket4)
pocket4.Profile = sketch5
pocket4.setExpression("Length", "Params.pocket4_length")

doc.recompute()
